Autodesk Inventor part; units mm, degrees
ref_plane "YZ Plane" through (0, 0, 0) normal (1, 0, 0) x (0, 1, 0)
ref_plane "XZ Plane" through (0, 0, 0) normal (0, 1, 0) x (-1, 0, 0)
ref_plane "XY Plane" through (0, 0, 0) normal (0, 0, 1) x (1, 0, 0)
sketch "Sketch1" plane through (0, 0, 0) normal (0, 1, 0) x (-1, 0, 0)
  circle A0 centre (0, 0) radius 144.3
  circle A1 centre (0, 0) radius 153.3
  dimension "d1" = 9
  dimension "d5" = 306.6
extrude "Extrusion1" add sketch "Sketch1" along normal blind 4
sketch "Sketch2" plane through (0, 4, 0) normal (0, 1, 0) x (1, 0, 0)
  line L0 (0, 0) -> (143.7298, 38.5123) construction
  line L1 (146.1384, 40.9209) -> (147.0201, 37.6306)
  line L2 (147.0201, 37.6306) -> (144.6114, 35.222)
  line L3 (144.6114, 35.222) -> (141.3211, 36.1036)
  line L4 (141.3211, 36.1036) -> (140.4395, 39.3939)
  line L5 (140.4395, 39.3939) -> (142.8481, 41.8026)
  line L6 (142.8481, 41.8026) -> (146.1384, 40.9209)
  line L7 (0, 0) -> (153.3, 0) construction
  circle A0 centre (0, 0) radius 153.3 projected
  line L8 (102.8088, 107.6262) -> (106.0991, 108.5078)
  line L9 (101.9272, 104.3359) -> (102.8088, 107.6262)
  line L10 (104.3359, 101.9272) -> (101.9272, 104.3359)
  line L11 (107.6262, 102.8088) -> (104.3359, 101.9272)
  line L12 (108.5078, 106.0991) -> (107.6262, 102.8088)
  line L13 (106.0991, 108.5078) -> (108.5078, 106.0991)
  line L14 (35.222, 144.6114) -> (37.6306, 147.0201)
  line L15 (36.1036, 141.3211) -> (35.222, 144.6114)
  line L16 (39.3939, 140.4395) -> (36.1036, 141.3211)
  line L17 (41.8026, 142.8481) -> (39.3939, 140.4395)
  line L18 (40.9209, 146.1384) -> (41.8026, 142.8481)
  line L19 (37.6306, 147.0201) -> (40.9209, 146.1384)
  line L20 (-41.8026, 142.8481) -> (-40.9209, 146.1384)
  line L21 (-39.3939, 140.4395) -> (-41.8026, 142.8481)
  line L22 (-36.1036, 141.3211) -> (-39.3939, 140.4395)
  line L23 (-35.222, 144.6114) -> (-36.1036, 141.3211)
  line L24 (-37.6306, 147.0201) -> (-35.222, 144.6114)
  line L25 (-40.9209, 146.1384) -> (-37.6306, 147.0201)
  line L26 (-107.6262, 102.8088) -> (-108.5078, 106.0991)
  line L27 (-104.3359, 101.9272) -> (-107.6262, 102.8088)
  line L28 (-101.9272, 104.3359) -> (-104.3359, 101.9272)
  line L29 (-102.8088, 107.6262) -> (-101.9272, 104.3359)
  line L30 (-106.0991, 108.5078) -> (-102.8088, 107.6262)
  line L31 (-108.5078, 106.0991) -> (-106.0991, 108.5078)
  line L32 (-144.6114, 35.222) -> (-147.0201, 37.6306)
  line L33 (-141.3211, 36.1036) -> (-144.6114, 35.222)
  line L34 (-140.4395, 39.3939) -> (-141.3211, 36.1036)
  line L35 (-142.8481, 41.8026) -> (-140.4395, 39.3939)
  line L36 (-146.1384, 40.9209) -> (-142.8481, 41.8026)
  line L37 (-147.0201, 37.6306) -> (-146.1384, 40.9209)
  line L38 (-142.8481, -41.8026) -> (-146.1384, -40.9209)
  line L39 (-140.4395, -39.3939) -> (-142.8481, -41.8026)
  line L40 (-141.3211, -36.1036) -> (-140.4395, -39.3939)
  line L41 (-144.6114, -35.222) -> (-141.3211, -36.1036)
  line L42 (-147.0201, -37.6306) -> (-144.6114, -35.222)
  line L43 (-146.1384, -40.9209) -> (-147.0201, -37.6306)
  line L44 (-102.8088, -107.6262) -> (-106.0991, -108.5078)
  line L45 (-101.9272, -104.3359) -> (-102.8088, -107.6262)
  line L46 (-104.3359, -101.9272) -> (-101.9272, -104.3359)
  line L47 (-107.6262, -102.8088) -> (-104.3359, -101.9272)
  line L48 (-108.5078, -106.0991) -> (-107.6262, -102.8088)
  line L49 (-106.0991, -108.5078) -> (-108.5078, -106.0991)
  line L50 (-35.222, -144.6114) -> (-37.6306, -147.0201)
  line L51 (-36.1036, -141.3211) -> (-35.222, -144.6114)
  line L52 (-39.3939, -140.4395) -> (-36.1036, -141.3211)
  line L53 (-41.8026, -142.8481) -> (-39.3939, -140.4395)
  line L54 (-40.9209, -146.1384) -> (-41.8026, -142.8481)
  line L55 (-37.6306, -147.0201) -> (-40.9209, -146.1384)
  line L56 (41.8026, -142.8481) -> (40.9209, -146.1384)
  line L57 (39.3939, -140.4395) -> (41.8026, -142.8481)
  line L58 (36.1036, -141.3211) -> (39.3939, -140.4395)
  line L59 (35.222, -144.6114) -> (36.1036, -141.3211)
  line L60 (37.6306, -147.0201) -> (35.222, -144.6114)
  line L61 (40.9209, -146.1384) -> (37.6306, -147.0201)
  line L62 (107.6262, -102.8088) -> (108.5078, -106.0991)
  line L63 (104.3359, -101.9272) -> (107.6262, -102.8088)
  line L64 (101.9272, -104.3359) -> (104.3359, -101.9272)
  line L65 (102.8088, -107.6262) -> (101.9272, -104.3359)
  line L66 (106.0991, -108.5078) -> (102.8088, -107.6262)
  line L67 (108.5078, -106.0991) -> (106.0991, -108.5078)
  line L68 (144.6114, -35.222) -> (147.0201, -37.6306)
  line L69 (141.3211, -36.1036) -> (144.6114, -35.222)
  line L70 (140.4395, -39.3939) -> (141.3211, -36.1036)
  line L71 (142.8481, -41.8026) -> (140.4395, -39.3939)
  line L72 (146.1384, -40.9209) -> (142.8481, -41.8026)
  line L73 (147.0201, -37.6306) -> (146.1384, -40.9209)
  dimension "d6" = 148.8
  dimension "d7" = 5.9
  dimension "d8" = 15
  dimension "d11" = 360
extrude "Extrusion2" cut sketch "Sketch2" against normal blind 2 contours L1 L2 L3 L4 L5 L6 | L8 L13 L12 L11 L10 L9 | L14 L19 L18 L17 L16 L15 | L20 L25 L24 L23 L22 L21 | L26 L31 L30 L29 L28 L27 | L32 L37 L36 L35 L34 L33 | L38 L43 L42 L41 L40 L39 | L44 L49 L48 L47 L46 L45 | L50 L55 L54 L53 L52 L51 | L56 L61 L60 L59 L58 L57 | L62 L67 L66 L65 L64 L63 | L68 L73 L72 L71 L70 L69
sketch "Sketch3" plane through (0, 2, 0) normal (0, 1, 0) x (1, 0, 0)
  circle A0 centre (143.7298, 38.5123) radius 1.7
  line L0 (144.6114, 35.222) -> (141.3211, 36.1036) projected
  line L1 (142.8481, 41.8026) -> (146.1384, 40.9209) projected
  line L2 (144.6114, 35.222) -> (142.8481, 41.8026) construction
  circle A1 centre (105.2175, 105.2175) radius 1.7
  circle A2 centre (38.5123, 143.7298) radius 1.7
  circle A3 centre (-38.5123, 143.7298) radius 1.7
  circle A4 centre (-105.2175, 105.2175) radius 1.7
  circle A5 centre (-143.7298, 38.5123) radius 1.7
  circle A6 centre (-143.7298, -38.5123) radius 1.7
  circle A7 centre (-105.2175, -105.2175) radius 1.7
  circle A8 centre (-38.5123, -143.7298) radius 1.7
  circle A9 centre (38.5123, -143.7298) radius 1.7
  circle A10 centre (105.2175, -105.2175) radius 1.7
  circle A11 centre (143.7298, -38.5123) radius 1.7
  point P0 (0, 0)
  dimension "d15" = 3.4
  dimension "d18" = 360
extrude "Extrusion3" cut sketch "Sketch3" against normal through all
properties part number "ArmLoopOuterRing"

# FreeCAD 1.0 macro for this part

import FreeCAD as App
import Part
import Sketcher

V = App.Vector
Q = App.Units.Quantity


def add_polygon(sketch, points):
    """Adds a closed chain of lines whose ends are joined by coincident constraints."""
    first, n = sketch.GeometryCount, len(points)
    for a, b in zip(points, points[1:] + points[:1]):
        sketch.addGeometry(Part.LineSegment(App.Vector(*a, 0), App.Vector(*b, 0)), False)
    for i in range(n):
        sketch.addConstraint(Sketcher.Constraint("Coincident", first + i, 2, first + (i + 1) % n, 1))

doc = App.newDocument("Part")
params = doc.addObject("Spreadsheet::Sheet", "Params")
for row, (alias, value) in enumerate([
    ("sketch1_diameter", "306.6 mm"),
    ("sketch1_diameter2", "288.6 mm"),
    ("pad1_length", "4 mm"),
    ("pocket1_length", "2 mm"),
    ("sketch3_diameter", "3.4 mm"),
], start=1):
    params.set(f"A{row}", alias)
    params.set(f"B{row}", "=" + value)
    params.setAlias(f"B{row}", alias)

body = doc.addObject("PartDesign::Body", "Body")

# Sketch on XZ plane
sketch1 = doc.addObject("Sketcher::SketchObject", "Sketch")
body.addObject(sketch1)
sketch1.AttachmentSupport = (doc.XZ_Plane, [""])
sketch1.MapMode = "FlatFace"
sketch1.addGeometry(Part.Circle(V(0, 0, 0), V(0, 0, 1), 153.3), False)
sketch1.addGeometry(Part.Circle(V(0, 0, 0), V(0, 0, 1), 144.3), False)
sketch1.addConstraint(Sketcher.Constraint("Coincident", 0, 3, -1, 1))
sketch1.addConstraint(Sketcher.Constraint("Coincident", 1, 3, -1, 1))
sketch1.addConstraint(Sketcher.Constraint("Diameter", 0, Q("306.6 mm")))
sketch1.addConstraint(Sketcher.Constraint("Diameter", 1, Q("288.6 mm")))
sketch1.setExpression("Constraints[2]", "Params.sketch1_diameter")
sketch1.setExpression("Constraints[3]", "Params.sketch1_diameter2")
pad1 = doc.addObject("PartDesign::Pad", "Pad")
body.addObject(pad1)
pad1.Profile = sketch1
pad1.setExpression("Length", "Params.pad1_length")
pad1.Reversed = True

# Sketch on XZ plane
sketch2 = doc.addObject("Sketcher::SketchObject", "Sketch001")
body.addObject(sketch2)
sketch2.AttachmentSupport = (doc.XZ_Plane, [""])
sketch2.MapMode = "FlatFace"
sketch2.AttachmentOffset = App.Placement(V(0, 0, -4), App.Rotation())
add_polygon(sketch2, [(147.0201, -37.6306), (146.1384, -40.9209), (142.8481, -41.8026), (140.4395, -39.3939), (141.3211, -36.1036), (144.6114, -35.222)])  # lines 0-5
add_polygon(sketch2, [(106.0991, -108.5078), (102.8088, -107.6262), (101.9272, -104.3359), (104.3359, -101.9272), (107.6262, -102.8088), (108.5078, -106.0991)])  # lines 6-11
add_polygon(sketch2, [(37.6306, -147.0201), (35.222, -144.6114), (36.1036, -141.3211), (39.3939, -140.4395), (41.8026, -142.8481), (40.9209, -146.1384)])  # lines 12-17
add_polygon(sketch2, [(-40.9209, -146.1384), (-41.8026, -142.8481), (-39.3939, -140.4395), (-36.1036, -141.3211), (-35.222, -144.6114), (-37.6306, -147.0201)])  # lines 18-23
add_polygon(sketch2, [(-108.5078, -106.0991), (-107.6262, -102.8088), (-104.3359, -101.9272), (-101.9272, -104.3359), (-102.8088, -107.6262), (-106.0991, -108.5078)])  # lines 24-29
add_polygon(sketch2, [(-147.0201, -37.6306), (-144.6114, -35.222), (-141.3211, -36.1036), (-140.4395, -39.3939), (-142.8481, -41.8026), (-146.1384, -40.9209)])  # lines 30-35
add_polygon(sketch2, [(-146.1384, 40.9209), (-142.8481, 41.8026), (-140.4395, 39.3939), (-141.3211, 36.1036), (-144.6114, 35.222), (-147.0201, 37.6306)])  # lines 36-41
add_polygon(sketch2, [(-106.0991, 108.5078), (-102.8088, 107.6262), (-101.9272, 104.3359), (-104.3359, 101.9272), (-107.6262, 102.8088), (-108.5078, 106.0991)])  # lines 42-47
add_polygon(sketch2, [(-37.6306, 147.0201), (-35.222, 144.6114), (-36.1036, 141.3211), (-39.3939, 140.4395), (-41.8026, 142.8481), (-40.9209, 146.1384)])  # lines 48-53
add_polygon(sketch2, [(40.9209, 146.1384), (41.8026, 142.8481), (39.3939, 140.4395), (36.1036, 141.3211), (35.222, 144.6114), (37.6306, 147.0201)])  # lines 54-59
add_polygon(sketch2, [(108.5078, 106.0991), (107.6262, 102.8088), (104.3359, 101.9272), (101.9272, 104.3359), (102.8088, 107.6262), (106.0991, 108.5078)])  # lines 60-65
add_polygon(sketch2, [(147.0201, 37.6306), (144.6114, 35.222), (141.3211, 36.1036), (140.4395, 39.3939), (142.8481, 41.8026), (146.1384, 40.9209)])  # lines 66-71
sketch2.addConstraint(Sketcher.Constraint("Symmetric", 1, 2, 36, 2, -1, 1))
sketch2.addConstraint(Sketcher.Constraint("Symmetric", 2, 2, 37, 2, -1, 1))
sketch2.addConstraint(Sketcher.Constraint("Symmetric", 3, 2, 38, 2, -1, 1))
sketch2.addConstraint(Sketcher.Constraint("Symmetric", 4, 2, 39, 2, -1, 1))
sketch2.addConstraint(Sketcher.Constraint("Symmetric", 5, 2, 40, 2, -1, 1))
sketch2.addConstraint(Sketcher.Constraint("Symmetric", 0, 2, 41, 2, -1, 1))
sketch2.addConstraint(Sketcher.Constraint("Symmetric", 6, 2, 42, 2, -1, 1))
sketch2.addConstraint(Sketcher.Constraint("Symmetric", 7, 2, 43, 2, -1, 1))
sketch2.addConstraint(Sketcher.Constraint("Symmetric", 8, 2, 44, 2, -1, 1))
sketch2.addConstraint(Sketcher.Constraint("Symmetric", 9, 2, 45, 2, -1, 1))
sketch2.addConstraint(Sketcher.Constraint("Symmetric", 10, 2, 46, 2, -1, 1))
sketch2.addConstraint(Sketcher.Constraint("Symmetric", 11, 2, 47, 2, -1, 1))
sketch2.addConstraint(Sketcher.Constraint("Symmetric", 12, 2, 48, 2, -1, 1))
sketch2.addConstraint(Sketcher.Constraint("Symmetric", 13, 2, 49, 2, -1, 1))
sketch2.addConstraint(Sketcher.Constraint("Symmetric", 14, 2, 50, 2, -1, 1))
sketch2.addConstraint(Sketcher.Constraint("Symmetric", 15, 2, 51, 2, -1, 1))
sketch2.addConstraint(Sketcher.Constraint("Symmetric", 16, 2, 52, 2, -1, 1))
sketch2.addConstraint(Sketcher.Constraint("Symmetric", 17, 2, 53, 2, -1, 1))
sketch2.addConstraint(Sketcher.Constraint("Symmetric", 18, 2, 54, 2, -1, 1))
sketch2.addConstraint(Sketcher.Constraint("Symmetric", 19, 2, 55, 2, -1, 1))
sketch2.addConstraint(Sketcher.Constraint("Symmetric", 20, 2, 56, 2, -1, 1))
sketch2.addConstraint(Sketcher.Constraint("Symmetric", 21, 2, 57, 2, -1, 1))
sketch2.addConstraint(Sketcher.Constraint("Symmetric", 22, 2, 58, 2, -1, 1))
sketch2.addConstraint(Sketcher.Constraint("Symmetric", 23, 2, 59, 2, -1, 1))
sketch2.addConstraint(Sketcher.Constraint("Symmetric", 24, 2, 60, 2, -1, 1))
sketch2.addConstraint(Sketcher.Constraint("Symmetric", 25, 2, 61, 2, -1, 1))
sketch2.addConstraint(Sketcher.Constraint("Symmetric", 26, 2, 62, 2, -1, 1))
sketch2.addConstraint(Sketcher.Constraint("Symmetric", 27, 2, 63, 2, -1, 1))
sketch2.addConstraint(Sketcher.Constraint("Symmetric", 28, 2, 64, 2, -1, 1))
sketch2.addConstraint(Sketcher.Constraint("Symmetric", 29, 2, 65, 2, -1, 1))
sketch2.addConstraint(Sketcher.Constraint("Symmetric", 30, 2, 66, 2, -1, 1))
sketch2.addConstraint(Sketcher.Constraint("Symmetric", 31, 2, 67, 2, -1, 1))
sketch2.addConstraint(Sketcher.Constraint("Symmetric", 32, 2, 68, 2, -1, 1))
sketch2.addConstraint(Sketcher.Constraint("Symmetric", 33, 2, 69, 2, -1, 1))
sketch2.addConstraint(Sketcher.Constraint("Symmetric", 34, 2, 70, 2, -1, 1))
sketch2.addConstraint(Sketcher.Constraint("Symmetric", 35, 2, 71, 2, -1, 1))
sketch2.addConstraint(Sketcher.Constraint("Symmetric", 15, 2, 18, 2, -2))
sketch2.addConstraint(Sketcher.Constraint("Symmetric", 14, 2, 19, 2, -2))
sketch2.addConstraint(Sketcher.Constraint("Symmetric", 13, 2, 20, 2, -2))
sketch2.addConstraint(Sketcher.Constraint("Symmetric", 12, 2, 21, 2, -2))
sketch2.addConstraint(Sketcher.Constraint("Symmetric", 17, 2, 22, 2, -2))
sketch2.addConstraint(Sketcher.Constraint("Symmetric", 16, 2, 23, 2, -2))
sketch2.addConstraint(Sketcher.Constraint("Symmetric", 9, 2, 24, 2, -2))
sketch2.addConstraint(Sketcher.Constraint("Symmetric", 8, 2, 25, 2, -2))
sketch2.addConstraint(Sketcher.Constraint("Symmetric", 7, 2, 26, 2, -2))
sketch2.addConstraint(Sketcher.Constraint("Symmetric", 6, 2, 27, 2, -2))
sketch2.addConstraint(Sketcher.Constraint("Symmetric", 11, 2, 28, 2, -2))
sketch2.addConstraint(Sketcher.Constraint("Symmetric", 10, 2, 29, 2, -2))
sketch2.addConstraint(Sketcher.Constraint("Symmetric", 4, 2, 30, 2, -2))
sketch2.addConstraint(Sketcher.Constraint("Symmetric", 3, 2, 31, 2, -2))
sketch2.addConstraint(Sketcher.Constraint("Symmetric", 2, 2, 32, 2, -2))
sketch2.addConstraint(Sketcher.Constraint("Symmetric", 1, 2, 33, 2, -2))
sketch2.addConstraint(Sketcher.Constraint("Symmetric", 0, 2, 34, 2, -2))
sketch2.addConstraint(Sketcher.Constraint("Symmetric", 5, 2, 35, 2, -2))
sketch2.addConstraint(Sketcher.Constraint("Parallel", 0, 3))
sketch2.addConstraint(Sketcher.Constraint("Parallel", 1, 4))
sketch2.addConstraint(Sketcher.Constraint("Parallel", 2, 5))
sketch2.addConstraint(Sketcher.Constraint("Perpendicular", 3, 6))
sketch2.addConstraint(Sketcher.Constraint("Perpendicular", 4, 7))
sketch2.addConstraint(Sketcher.Constraint("Perpendicular", 5, 8))
sketch2.addConstraint(Sketcher.Constraint("Parallel", 6, 9))
sketch2.addConstraint(Sketcher.Constraint("Parallel", 7, 10))
sketch2.addConstraint(Sketcher.Constraint("Parallel", 8, 11))
sketch2.addConstraint(Sketcher.Constraint("Perpendicular", 11, 12))
sketch2.addConstraint(Sketcher.Constraint("Perpendicular", 9, 13))
sketch2.addConstraint(Sketcher.Constraint("Perpendicular", 10, 14))
sketch2.addConstraint(Sketcher.Constraint("Parallel", 12, 15))
sketch2.addConstraint(Sketcher.Constraint("Parallel", 13, 16))
sketch2.addConstraint(Sketcher.Constraint("Parallel", 14, 17))
sketch2.addConstraint(Sketcher.Constraint("Perpendicular", 17, 18))
sketch2.addConstraint(Sketcher.Constraint("Perpendicular", 15, 19))
sketch2.addConstraint(Sketcher.Constraint("Equal", 0, 1))
sketch2.addConstraint(Sketcher.Constraint("Equal", 1, 2))
sketch2.addConstraint(Sketcher.Constraint("Equal", 2, 3))
sketch2.addConstraint(Sketcher.Constraint("Equal", 5, 6))
sketch2.addConstraint(Sketcher.Constraint("Equal", 6, 7))
sketch2.addConstraint(Sketcher.Constraint("Equal", 7, 8))
sketch2.addConstraint(Sketcher.Constraint("Equal", 8, 9))
sketch2.addConstraint(Sketcher.Constraint("Equal", 11, 12))
sketch2.addConstraint(Sketcher.Constraint("Equal", 12, 13))
sketch2.addConstraint(Sketcher.Constraint("Equal", 13, 14))
sketch2.addConstraint(Sketcher.Constraint("Equal", 14, 15))
sketch2.addConstraint(Sketcher.Constraint("Angle", 4, Q("14.9995 deg")))
sketch2.addConstraint(Sketcher.Constraint("DistanceX", -1, 1, 5, 2, Q("147.02 mm")))
sketch2.addConstraint(Sketcher.Constraint("DistanceY", 17, 2, -1, 1, Q("147.02 mm")))
sketch2.addConstraint(Sketcher.Constraint("DistanceY", 0, 2, -1, 1, Q("40.921 mm")))
sketch2.addConstraint(Sketcher.Constraint("DistanceX", -1, 1, 1, 2, Q("142.848 mm")))
sketch2.addConstraint(Sketcher.Constraint("DistanceY", 7, 2, -1, 1, Q("104.336 mm")))
sketch2.addConstraint(Sketcher.Constraint("DistanceX", -1, 1, 8, 2, Q("104.336 mm")))
sketch2.addConstraint(Sketcher.Constraint("DistanceX", -1, 1, 12, 2, Q("35.222 mm")))
pocket1 = doc.addObject("PartDesign::Pocket", "Pocket")
body.addObject(pocket1)
pocket1.Profile = sketch2
pocket1.setExpression("Length", "Params.pocket1_length")
pocket1.Reversed = True

# Sketch on XZ plane
sketch3 = doc.addObject("Sketcher::SketchObject", "Sketch002")
body.addObject(sketch3)
sketch3.AttachmentSupport = (doc.XZ_Plane, [""])
sketch3.MapMode = "FlatFace"
sketch3.AttachmentOffset = App.Placement(V(0, 0, -2), App.Rotation())
sketch3.addGeometry(Part.Circle(V(143.7298, -38.5123, 0), V(0, 0, 1), 1.7), False)
sketch3.addGeometry(Part.Circle(V(105.2175, -105.2175, 0), V(0, 0, 1), 1.7), False)
sketch3.addGeometry(Part.Circle(V(38.5123, -143.7298, 0), V(0, 0, 1), 1.7), False)
sketch3.addGeometry(Part.Circle(V(-38.5123, -143.7298, 0), V(0, 0, 1), 1.7), False)
sketch3.addGeometry(Part.Circle(V(-105.2175, -105.2175, 0), V(0, 0, 1), 1.7), False)
sketch3.addGeometry(Part.Circle(V(-143.7298, -38.5123, 0), V(0, 0, 1), 1.7), False)
sketch3.addGeometry(Part.Circle(V(-143.7298, 38.5123, 0), V(0, 0, 1), 1.7), False)
sketch3.addGeometry(Part.Circle(V(-105.2175, 105.2175, 0), V(0, 0, 1), 1.7), False)
sketch3.addGeometry(Part.Circle(V(-38.5123, 143.7298, 0), V(0, 0, 1), 1.7), False)
sketch3.addGeometry(Part.Circle(V(38.5123, 143.7298, 0), V(0, 0, 1), 1.7), False)
sketch3.addGeometry(Part.Circle(V(105.2175, 105.2175, 0), V(0, 0, 1), 1.7), False)
sketch3.addGeometry(Part.Circle(V(143.7298, 38.5123, 0), V(0, 0, 1), 1.7), False)
sketch3.addConstraint(Sketcher.Constraint("Equal", 0, 1))
sketch3.addConstraint(Sketcher.Constraint("Equal", 1, 2))
sketch3.addConstraint(Sketcher.Constraint("Equal", 2, 3))
sketch3.addConstraint(Sketcher.Constraint("Equal", 3, 4))
sketch3.addConstraint(Sketcher.Constraint("Equal", 4, 5))
sketch3.addConstraint(Sketcher.Constraint("Equal", 5, 6))
sketch3.addConstraint(Sketcher.Constraint("Equal", 6, 7))
sketch3.addConstraint(Sketcher.Constraint("Equal", 7, 8))
sketch3.addConstraint(Sketcher.Constraint("Equal", 8, 9))
sketch3.addConstraint(Sketcher.Constraint("Equal", 9, 10))
sketch3.addConstraint(Sketcher.Constraint("Equal", 10, 11))
sketch3.addConstraint(Sketcher.Constraint("Symmetric", 0, 3, 6, 3, -1, 1))
sketch3.addConstraint(Sketcher.Constraint("Symmetric", 1, 3, 7, 3, -1, 1))
sketch3.addConstraint(Sketcher.Constraint("Symmetric", 2, 3, 8, 3, -1, 1))
sketch3.addConstraint(Sketcher.Constraint("Symmetric", 3, 3, 9, 3, -1, 1))
sketch3.addConstraint(Sketcher.Constraint("Symmetric", 4, 3, 10, 3, -1, 1))
sketch3.addConstraint(Sketcher.Constraint("Symmetric", 5, 3, 11, 3, -1, 1))
sketch3.addConstraint(Sketcher.Constraint("Symmetric", 2, 3, 3, 3, -2))
sketch3.addConstraint(Sketcher.Constraint("Symmetric", 1, 3, 4, 3, -2))
sketch3.addConstraint(Sketcher.Constraint("Symmetric", 0, 3, 5, 3, -2))
sketch3.addConstraint(Sketcher.Constraint("Diameter", 0, Q("3.4 mm")))
sketch3.addConstraint(Sketcher.Constraint("DistanceX", 3, 3, 0, 3, Q("182.242 mm")))
sketch3.addConstraint(Sketcher.Constraint("DistanceX", 4, 3, 1, 3, Q("210.435 mm")))
sketch3.addConstraint(Sketcher.Constraint("DistanceY", 3, 3, 6, 3, Q("182.242 mm")))
sketch3.addConstraint(Sketcher.Constraint("DistanceY", 4, 3, 7, 3, Q("210.435 mm")))
sketch3.addConstraint(Sketcher.Constraint("DistanceX", -1, 1, 0, 3, Q("143.7298 mm")))
sketch3.addConstraint(Sketcher.Constraint("DistanceY", 0, 3, -1, 1, Q("38.5123 mm")))
sketch3.setExpression("Constraints[20]", "Params.sketch3_diameter")
pocket2 = doc.addObject("PartDesign::Pocket", "Pocket001")
body.addObject(pocket2)
pocket2.Profile = sketch3
pocket2.Type = "ThroughAll"
pocket2.Reversed = True

doc.recompute()
